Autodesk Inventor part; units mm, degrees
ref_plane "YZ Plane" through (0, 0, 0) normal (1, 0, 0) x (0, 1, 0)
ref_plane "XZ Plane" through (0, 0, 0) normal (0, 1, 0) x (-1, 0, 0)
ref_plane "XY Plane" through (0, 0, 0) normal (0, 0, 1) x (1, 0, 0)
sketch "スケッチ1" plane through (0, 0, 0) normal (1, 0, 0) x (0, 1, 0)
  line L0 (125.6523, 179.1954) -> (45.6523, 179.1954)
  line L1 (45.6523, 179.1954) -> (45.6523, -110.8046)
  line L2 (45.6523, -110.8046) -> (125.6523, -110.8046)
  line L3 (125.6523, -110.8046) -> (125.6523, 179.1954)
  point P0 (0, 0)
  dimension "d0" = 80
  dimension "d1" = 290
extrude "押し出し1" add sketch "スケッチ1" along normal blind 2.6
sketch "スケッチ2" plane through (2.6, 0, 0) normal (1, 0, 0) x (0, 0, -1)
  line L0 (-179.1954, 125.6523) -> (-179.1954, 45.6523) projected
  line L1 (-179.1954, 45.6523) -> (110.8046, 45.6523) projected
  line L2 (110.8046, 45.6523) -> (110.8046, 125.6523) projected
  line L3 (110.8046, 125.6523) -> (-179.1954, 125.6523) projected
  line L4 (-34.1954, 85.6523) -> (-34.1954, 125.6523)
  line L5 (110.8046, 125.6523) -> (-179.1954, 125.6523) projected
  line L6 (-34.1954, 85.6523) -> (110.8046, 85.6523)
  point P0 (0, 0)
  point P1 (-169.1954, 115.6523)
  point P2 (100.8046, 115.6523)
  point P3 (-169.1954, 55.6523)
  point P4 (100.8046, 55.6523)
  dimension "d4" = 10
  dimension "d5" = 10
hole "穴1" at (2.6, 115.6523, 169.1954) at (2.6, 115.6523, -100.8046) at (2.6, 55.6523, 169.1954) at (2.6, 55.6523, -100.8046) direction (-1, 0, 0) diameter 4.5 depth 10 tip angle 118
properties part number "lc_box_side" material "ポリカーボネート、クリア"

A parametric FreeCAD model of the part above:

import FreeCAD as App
import Part
import Sketcher

V = App.Vector

doc = App.newDocument("Part")
body = doc.addObject("PartDesign::Body", "Body")

# Sketch on YZ plane
sketch1 = body.newObject("Sketcher::SketchObject", "Sketch")
sketch1.AttachmentSupport = (doc.getObject("YZ_Plane"), [""])
sketch1.MapMode = "FlatFace"
sketch1.addGeometry([
    Part.LineSegment(V(125.6523, -110.8046, 0), V(125.6523, 179.1954, 0)),
    Part.LineSegment(V(125.6523, 179.1954, 0), V(45.6523, 179.1954, 0)),
    Part.LineSegment(V(45.6523, 179.1954, 0), V(45.6523, -110.8046, 0)),
    Part.LineSegment(V(45.6523, -110.8046, 0), V(125.6523, -110.8046, 0)),
], False)
sketch1.addConstraint([
    Sketcher.Constraint("Coincident", 0, 2, 1, 1),
    Sketcher.Constraint("Coincident", 1, 2, 2, 1),
    Sketcher.Constraint("Coincident", 2, 2, 3, 1),
    Sketcher.Constraint("Coincident", 3, 2, 0, 1),
    Sketcher.Constraint("Vertical", 0),
    Sketcher.Constraint("Horizontal", 1),
    Sketcher.Constraint("Vertical", 2),
    Sketcher.Constraint("Horizontal", 3),
    Sketcher.Constraint("DistanceX", 1, 2, 1, 1, 80.0),
    Sketcher.Constraint("DistanceY", 0, 1, 0, 2, 290.0),
    Sketcher.Constraint("DistanceX", -1, 1, 0, 2, 125.6523),
    Sketcher.Constraint("DistanceY", -1, 1, 0, 2, 179.1954),
])
pad1 = body.newObject("PartDesign::Pad", "Pad")
pad1.Profile = sketch1
pad1.Length = 2.6

# Sketch on YZ plane
sketch2 = body.newObject("Sketcher::SketchObject", "Sketch001")
sketch2.AttachmentSupport = (doc.getObject("YZ_Plane"), [""])
sketch2.MapMode = "FlatFace"
sketch2.AttachmentOffset = App.Placement(V(0, 0, 2.6), App.Rotation())
sketch2.addGeometry([
    Part.Circle(V(115.6523, 169.1954, 0), V(0, 0, 1), 2.25),
    Part.Circle(V(115.6523, -100.8046, 0), V(0, 0, 1), 2.25),
    Part.Circle(V(55.6523, 169.1954, 0), V(0, 0, 1), 2.25),
    Part.Circle(V(55.6523, -100.8046, 0), V(0, 0, 1), 2.25),
], False)
sketch2.addConstraint([
    Sketcher.Constraint("Equal", 0, 1),
    Sketcher.Constraint("Equal", 1, 2),
    Sketcher.Constraint("Equal", 2, 3),
    Sketcher.Constraint("Horizontal", 0, 3, 2, 3),
    Sketcher.Constraint("Horizontal", 1, 3, 3, 3),
    Sketcher.Constraint("Vertical", 0, 3, 1, 3),
    Sketcher.Constraint("Vertical", 2, 3, 3, 3),
    Sketcher.Constraint("Diameter", 0, 4.5),
    Sketcher.Constraint("DistanceY", 1, 3, 0, 3, 270.0),
    Sketcher.Constraint("DistanceX", 2, 3, 0, 3, 60.0),
    Sketcher.Constraint("DistanceX", -1, 1, 0, 3, 115.6523),
    Sketcher.Constraint("DistanceY", -1, 1, 0, 3, 169.1954),
])
doc.recompute()
hole = body.newObject("PartDesign::Hole", "Hole")
hole.Profile = sketch2
hole.ThreadType = "None"
hole.Diameter = 4.5
hole.DepthType = "Dimension"
hole.Depth = 10
hole.DrillPoint = "Angled"
hole.DrillPointAngle = 118

doc.recompute()
